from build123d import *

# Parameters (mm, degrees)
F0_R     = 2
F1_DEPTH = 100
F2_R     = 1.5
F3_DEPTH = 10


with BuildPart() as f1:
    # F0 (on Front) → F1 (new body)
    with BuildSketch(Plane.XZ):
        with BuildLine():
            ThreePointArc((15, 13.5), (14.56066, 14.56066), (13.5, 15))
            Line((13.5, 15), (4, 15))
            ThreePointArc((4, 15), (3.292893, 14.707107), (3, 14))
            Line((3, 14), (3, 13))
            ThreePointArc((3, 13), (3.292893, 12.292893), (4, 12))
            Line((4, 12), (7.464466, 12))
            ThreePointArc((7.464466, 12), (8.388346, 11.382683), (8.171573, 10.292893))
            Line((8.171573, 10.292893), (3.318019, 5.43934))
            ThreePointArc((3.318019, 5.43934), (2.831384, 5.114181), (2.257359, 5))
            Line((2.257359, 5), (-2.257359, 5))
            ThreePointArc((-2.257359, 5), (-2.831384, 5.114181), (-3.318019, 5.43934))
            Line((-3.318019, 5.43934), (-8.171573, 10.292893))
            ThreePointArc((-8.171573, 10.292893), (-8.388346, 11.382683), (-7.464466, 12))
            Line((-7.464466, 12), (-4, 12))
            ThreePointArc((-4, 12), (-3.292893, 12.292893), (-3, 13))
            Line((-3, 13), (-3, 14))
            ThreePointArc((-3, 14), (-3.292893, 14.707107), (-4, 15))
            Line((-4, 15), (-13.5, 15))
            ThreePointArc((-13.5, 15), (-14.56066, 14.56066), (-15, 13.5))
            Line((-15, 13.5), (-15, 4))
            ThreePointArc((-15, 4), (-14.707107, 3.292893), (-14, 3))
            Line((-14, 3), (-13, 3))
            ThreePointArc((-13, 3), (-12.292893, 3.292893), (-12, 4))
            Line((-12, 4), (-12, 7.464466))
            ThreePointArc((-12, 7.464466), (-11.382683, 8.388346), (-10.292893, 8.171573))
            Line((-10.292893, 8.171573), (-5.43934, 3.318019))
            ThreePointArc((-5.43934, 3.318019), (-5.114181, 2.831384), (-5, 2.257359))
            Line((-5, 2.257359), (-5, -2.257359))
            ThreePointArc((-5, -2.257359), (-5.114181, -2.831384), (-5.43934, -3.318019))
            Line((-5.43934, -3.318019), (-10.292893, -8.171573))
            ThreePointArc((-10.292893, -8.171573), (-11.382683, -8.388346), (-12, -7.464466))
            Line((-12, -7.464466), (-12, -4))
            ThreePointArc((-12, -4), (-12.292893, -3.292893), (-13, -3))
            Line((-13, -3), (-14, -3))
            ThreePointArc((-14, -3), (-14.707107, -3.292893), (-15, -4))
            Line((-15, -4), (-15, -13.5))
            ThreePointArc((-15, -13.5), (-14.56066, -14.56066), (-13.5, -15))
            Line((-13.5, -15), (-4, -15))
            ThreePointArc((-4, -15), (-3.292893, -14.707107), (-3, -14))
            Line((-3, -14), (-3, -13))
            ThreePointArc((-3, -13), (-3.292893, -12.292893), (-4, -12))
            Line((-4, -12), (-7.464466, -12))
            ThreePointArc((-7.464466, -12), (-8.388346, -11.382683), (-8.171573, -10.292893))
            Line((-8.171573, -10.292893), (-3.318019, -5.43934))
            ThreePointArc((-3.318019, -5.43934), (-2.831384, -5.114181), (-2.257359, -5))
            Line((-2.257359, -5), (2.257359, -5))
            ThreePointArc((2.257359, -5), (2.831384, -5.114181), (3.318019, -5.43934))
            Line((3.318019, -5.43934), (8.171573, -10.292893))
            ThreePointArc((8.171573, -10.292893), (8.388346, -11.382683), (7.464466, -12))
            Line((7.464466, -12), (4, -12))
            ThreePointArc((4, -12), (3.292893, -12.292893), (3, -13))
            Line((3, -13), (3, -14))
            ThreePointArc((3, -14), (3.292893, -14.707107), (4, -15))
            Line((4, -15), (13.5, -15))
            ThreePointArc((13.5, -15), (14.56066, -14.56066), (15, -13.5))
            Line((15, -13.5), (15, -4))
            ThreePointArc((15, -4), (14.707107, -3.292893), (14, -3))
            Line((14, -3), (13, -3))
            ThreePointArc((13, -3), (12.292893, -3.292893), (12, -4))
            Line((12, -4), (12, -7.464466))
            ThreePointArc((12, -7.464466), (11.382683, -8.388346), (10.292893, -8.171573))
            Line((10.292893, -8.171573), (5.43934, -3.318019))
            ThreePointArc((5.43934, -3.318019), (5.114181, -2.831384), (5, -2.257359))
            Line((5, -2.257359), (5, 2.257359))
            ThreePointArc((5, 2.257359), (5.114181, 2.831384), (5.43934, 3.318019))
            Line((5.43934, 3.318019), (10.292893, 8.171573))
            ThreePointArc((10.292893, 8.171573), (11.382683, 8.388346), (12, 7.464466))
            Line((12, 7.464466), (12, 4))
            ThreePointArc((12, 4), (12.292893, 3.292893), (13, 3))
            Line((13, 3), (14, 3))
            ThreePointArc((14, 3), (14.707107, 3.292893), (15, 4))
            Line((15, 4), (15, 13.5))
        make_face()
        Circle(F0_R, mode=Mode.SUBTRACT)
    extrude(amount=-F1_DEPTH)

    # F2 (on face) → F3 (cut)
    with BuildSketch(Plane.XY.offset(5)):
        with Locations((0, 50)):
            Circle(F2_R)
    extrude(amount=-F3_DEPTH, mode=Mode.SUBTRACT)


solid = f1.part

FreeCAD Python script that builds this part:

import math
import FreeCAD as App
import Part
import Sketcher

V = App.Vector

doc = App.newDocument("Part")
params = doc.addObject("Spreadsheet::Sheet", "Params")
for row, (alias, value) in enumerate([
    ("sketch1_diameter", "4 mm"),
    ("sketch1_radius", "0.999999 mm"),
    ("sketch1_radius2", "1.500001 mm"),
    ("sketch1_width", "1 mm"),
    ("sketch1_width2", "9.5 mm"),
    ("pad1_length", "100 mm"),
    ("sketch2_diameter", "3 mm"),
    ("pocket1_length", "10 mm"),
], start=1):
    params.set(f"A{row}", alias)
    params.set(f"B{row}", "=" + value)
    params.setAlias(f"B{row}", alias)

body = doc.addObject("PartDesign::Body", "Body")

# Sketch on XZ plane
sketch1 = body.newObject("Sketcher::SketchObject", "Sketch")
sketch1.AttachmentSupport = (doc.getObject("XZ_Plane"), [""])
sketch1.MapMode = "FlatFace"
sketch1.addGeometry([
    Part.ArcOfCircle(Part.Circle(V(13.5, 13.5, 0), V(0, 0, 1), 1.5), math.radians(0), math.radians(90)),  # 0
    Part.LineSegment(V(13.5, 15, 0), V(4, 15, 0)),  # 1
    Part.ArcOfCircle(Part.Circle(V(4, 14, 0), V(0, 0, 1), 1), math.radians(90), math.radians(180)),  # 2
    Part.LineSegment(V(3, 14, 0), V(3, 13, 0)),  # 3
    Part.ArcOfCircle(Part.Circle(V(4, 13, 0), V(0, 0, 1), 1), math.radians(180), math.radians(270)),  # 4
    Part.LineSegment(V(4, 12, 0), V(7.5, 12, 0)),  # 5
    Part.ArcOfCircle(Part.Circle(V(7.5, 11, 0), V(0, 0, 1), 1), math.radians(-45), math.radians(90)),  # 6
    Part.LineSegment(V(8.2, 10.3, 0), V(3.3, 5.4, 0)),  # 7
    Part.ArcOfCircle(Part.Circle(V(2.3, 6.5, 0), V(0, 0, 1), 1.5), math.radians(-90), math.radians(-45)),  # 8
    Part.LineSegment(V(2.3, 5, 0), V(-2.3, 5, 0)),  # 9
    Part.ArcOfCircle(Part.Circle(V(-2.3, 6.5, 0), V(0, 0, 1), 1.5), math.radians(-135), math.radians(-90)),  # 10
    Part.LineSegment(V(-3.3, 5.4, 0), V(-8.2, 10.3, 0)),  # 11
    Part.ArcOfCircle(Part.Circle(V(-7.5, 11, 0), V(0, 0, 1), 1), math.radians(90), math.radians(225)),  # 12
    Part.LineSegment(V(-7.5, 12, 0), V(-4, 12, 0)),  # 13
    Part.ArcOfCircle(Part.Circle(V(-4, 13, 0), V(0, 0, 1), 1), math.radians(-90), math.radians(0)),  # 14
    Part.LineSegment(V(-3, 13, 0), V(-3, 14, 0)),  # 15
    Part.ArcOfCircle(Part.Circle(V(-4, 14, 0), V(0, 0, 1), 1), math.radians(0), math.radians(90)),  # 16
    Part.LineSegment(V(-4, 15, 0), V(-13.5, 15, 0)),  # 17
    Part.ArcOfCircle(Part.Circle(V(-13.5, 13.5, 0), V(0, 0, 1), 1.5), math.radians(90), math.radians(180)),  # 18
    Part.LineSegment(V(-15, 13.5, 0), V(-15, 4, 0)),  # 19
    Part.ArcOfCircle(Part.Circle(V(-14, 4, 0), V(0, 0, 1), 1), math.radians(180), math.radians(270)),  # 20
    Part.LineSegment(V(-14, 3, 0), V(-13, 3, 0)),  # 21
    Part.ArcOfCircle(Part.Circle(V(-13, 4, 0), V(0, 0, 1), 1), math.radians(-90), math.radians(0)),  # 22
    Part.LineSegment(V(-12, 4, 0), V(-12, 7.5, 0)),  # 23
    Part.ArcOfCircle(Part.Circle(V(-11, 7.5, 0), V(0, 0, 1), 1), math.radians(45), math.radians(180)),  # 24
    Part.LineSegment(V(-10.3, 8.2, 0), V(-5.4, 3.3, 0)),  # 25
    Part.ArcOfCircle(Part.Circle(V(-6.5, 2.3, 0), V(0, 0, 1), 1.5), math.radians(0), math.radians(45)),  # 26
    Part.LineSegment(V(-5, 2.3, 0), V(-5, -2.3, 0)),  # 27
    Part.ArcOfCircle(Part.Circle(V(-6.5, -2.3, 0), V(0, 0, 1), 1.5), math.radians(-45), math.radians(0)),  # 28
    Part.LineSegment(V(-5.4, -3.3, 0), V(-10.3, -8.2, 0)),  # 29
    Part.ArcOfCircle(Part.Circle(V(-11, -7.5, 0), V(0, 0, 1), 1), math.radians(180), math.radians(315)),  # 30
    Part.LineSegment(V(-12, -7.5, 0), V(-12, -4, 0)),  # 31
    Part.ArcOfCircle(Part.Circle(V(-13, -4, 0), V(0, 0, 1), 1), math.radians(0), math.radians(90)),  # 32
    Part.LineSegment(V(-13, -3, 0), V(-14, -3, 0)),  # 33
    Part.ArcOfCircle(Part.Circle(V(-14, -4, 0), V(0, 0, 1), 1), math.radians(90), math.radians(180)),  # 34
    Part.LineSegment(V(-15, -4, 0), V(-15, -13.5, 0)),  # 35
    Part.ArcOfCircle(Part.Circle(V(-13.5, -13.5, 0), V(0, 0, 1), 1.5), math.radians(-180), math.radians(-90)),  # 36
    Part.LineSegment(V(-13.5, -15, 0), V(-4, -15, 0)),  # 37
    Part.ArcOfCircle(Part.Circle(V(-4, -14, 0), V(0, 0, 1), 1), math.radians(-90), math.radians(0)),  # 38
    Part.LineSegment(V(-3, -14, 0), V(-3, -13, 0)),  # 39
    Part.ArcOfCircle(Part.Circle(V(-4, -13, 0), V(0, 0, 1), 1), math.radians(0), math.radians(90)),  # 40
    Part.LineSegment(V(-4, -12, 0), V(-7.5, -12, 0)),  # 41
    Part.ArcOfCircle(Part.Circle(V(-7.5, -11, 0), V(0, 0, 1), 1), math.radians(135), math.radians(270)),  # 42
    Part.LineSegment(V(-8.2, -10.3, 0), V(-3.3, -5.4, 0)),  # 43
    Part.ArcOfCircle(Part.Circle(V(-2.3, -6.5, 0), V(0, 0, 1), 1.5), math.radians(90), math.radians(135)),  # 44
    Part.LineSegment(V(-2.3, -5, 0), V(2.3, -5, 0)),  # 45
    Part.ArcOfCircle(Part.Circle(V(2.3, -6.5, 0), V(0, 0, 1), 1.5), math.radians(45), math.radians(90)),  # 46
    Part.LineSegment(V(3.3, -5.4, 0), V(8.2, -10.3, 0)),  # 47
    Part.ArcOfCircle(Part.Circle(V(7.5, -11, 0), V(0, 0, 1), 1), math.radians(-90), math.radians(45)),  # 48
    Part.LineSegment(V(7.5, -12, 0), V(4, -12, 0)),  # 49
    Part.ArcOfCircle(Part.Circle(V(4, -13, 0), V(0, 0, 1), 1), math.radians(90), math.radians(180)),  # 50
    Part.LineSegment(V(3, -13, 0), V(3, -14, 0)),  # 51
    Part.ArcOfCircle(Part.Circle(V(4, -14, 0), V(0, 0, 1), 1), math.radians(180), math.radians(270)),  # 52
    Part.LineSegment(V(4, -15, 0), V(13.5, -15, 0)),  # 53
    Part.ArcOfCircle(Part.Circle(V(13.5, -13.5, 0), V(0, 0, 1), 1.5), math.radians(-90), math.radians(0)),  # 54
    Part.LineSegment(V(15, -13.5, 0), V(15, -4, 0)),  # 55
    Part.ArcOfCircle(Part.Circle(V(14, -4, 0), V(0, 0, 1), 1), math.radians(0), math.radians(90)),  # 56
    Part.LineSegment(V(14, -3, 0), V(13, -3, 0)),  # 57
    Part.ArcOfCircle(Part.Circle(V(13, -4, 0), V(0, 0, 1), 1), math.radians(90), math.radians(180)),  # 58
    Part.LineSegment(V(12, -4, 0), V(12, -7.5, 0)),  # 59
    Part.ArcOfCircle(Part.Circle(V(11, -7.5, 0), V(0, 0, 1), 1), math.radians(-135), math.radians(0)),  # 60
    Part.LineSegment(V(10.3, -8.2, 0), V(5.4, -3.3, 0)),  # 61
    Part.ArcOfCircle(Part.Circle(V(6.5, -2.3, 0), V(0, 0, 1), 1.5), math.radians(-180), math.radians(-135)),  # 62
    Part.LineSegment(V(5, -2.3, 0), V(5, 2.3, 0)),  # 63
    Part.ArcOfCircle(Part.Circle(V(6.5, 2.3, 0), V(0, 0, 1), 1.5), math.radians(135), math.radians(180)),  # 64
    Part.LineSegment(V(5.4, 3.3, 0), V(10.3, 8.2, 0)),  # 65
    Part.ArcOfCircle(Part.Circle(V(11, 7.5, 0), V(0, 0, 1), 1), math.radians(0), math.radians(135)),  # 66
    Part.LineSegment(V(12, 7.5, 0), V(12, 4, 0)),  # 67
    Part.ArcOfCircle(Part.Circle(V(13, 4, 0), V(0, 0, 1), 1), math.radians(180), math.radians(270)),  # 68
    Part.LineSegment(V(13, 3, 0), V(14, 3, 0)),  # 69
    Part.ArcOfCircle(Part.Circle(V(14, 4, 0), V(0, 0, 1), 1), math.radians(-90), math.radians(0)),  # 70
    Part.LineSegment(V(15, 4, 0), V(15, 13.5, 0)),  # 71
    Part.Circle(V(0, 0, 0), V(0, 0, 1), 2),  # 72
], False)
sketch1.addConstraint([
    Sketcher.Constraint("Tangent", 0, 2, 1, 1),
    Sketcher.Constraint("Tangent", 1, 2, 2, 1),
    Sketcher.Constraint("Tangent", 2, 2, 3, 1),
    Sketcher.Constraint("Tangent", 3, 2, 4, 1),
    Sketcher.Constraint("Tangent", 4, 2, 5, 1),
    Sketcher.Constraint("Tangent", 5, 2, 6, 2),
    Sketcher.Constraint("Tangent", 6, 1, 7, 1),
    Sketcher.Constraint("Tangent", 7, 2, 8, 2),
    Sketcher.Constraint("Tangent", 8, 1, 9, 1),
    Sketcher.Constraint("Tangent", 9, 2, 10, 2),
    Sketcher.Constraint("Tangent", 10, 1, 11, 1),
    Sketcher.Constraint("Tangent", 11, 2, 12, 2),
    Sketcher.Constraint("Tangent", 12, 1, 13, 1),
    Sketcher.Constraint("Tangent", 13, 2, 14, 1),
    Sketcher.Constraint("Tangent", 14, 2, 15, 1),
    Sketcher.Constraint("Tangent", 15, 2, 16, 1),
    Sketcher.Constraint("Tangent", 16, 2, 17, 1),
    Sketcher.Constraint("Tangent", 17, 2, 18, 1),
    Sketcher.Constraint("Tangent", 18, 2, 19, 1),
    Sketcher.Constraint("Tangent", 19, 2, 20, 1),
    Sketcher.Constraint("Tangent", 20, 2, 21, 1),
    Sketcher.Constraint("Tangent", 21, 2, 22, 1),
    Sketcher.Constraint("Tangent", 22, 2, 23, 1),
    Sketcher.Constraint("Tangent", 23, 2, 24, 2),
    Sketcher.Constraint("Tangent", 24, 1, 25, 1),
    Sketcher.Constraint("Tangent", 25, 2, 26, 2),
    Sketcher.Constraint("Tangent", 26, 1, 27, 1),
    Sketcher.Constraint("Tangent", 27, 2, 28, 2),
    Sketcher.Constraint("Tangent", 28, 1, 29, 1),
    Sketcher.Constraint("Tangent", 29, 2, 30, 2),
    Sketcher.Constraint("Tangent", 30, 1, 31, 1),
    Sketcher.Constraint("Tangent", 31, 2, 32, 1),
    Sketcher.Constraint("Tangent", 32, 2, 33, 1),
    Sketcher.Constraint("Tangent", 33, 2, 34, 1),
    Sketcher.Constraint("Tangent", 34, 2, 35, 1),
    Sketcher.Constraint("Tangent", 35, 2, 36, 1),
    Sketcher.Constraint("Tangent", 36, 2, 37, 1),
    Sketcher.Constraint("Tangent", 37, 2, 38, 1),
    Sketcher.Constraint("Tangent", 38, 2, 39, 1),
    Sketcher.Constraint("Tangent", 39, 2, 40, 1),
    Sketcher.Constraint("Tangent", 40, 2, 41, 1),
    Sketcher.Constraint("Tangent", 41, 2, 42, 2),
    Sketcher.Constraint("Tangent", 42, 1, 43, 1),
    Sketcher.Constraint("Tangent", 43, 2, 44, 2),
    Sketcher.Constraint("Tangent", 44, 1, 45, 1),
    Sketcher.Constraint("Tangent", 45, 2, 46, 2),
    Sketcher.Constraint("Tangent", 46, 1, 47, 1),
    Sketcher.Constraint("Tangent", 47, 2, 48, 2),
    Sketcher.Constraint("Tangent", 48, 1, 49, 1),
    Sketcher.Constraint("Tangent", 49, 2, 50, 1),
    Sketcher.Constraint("Tangent", 50, 2, 51, 1),
    Sketcher.Constraint("Tangent", 51, 2, 52, 1),
    Sketcher.Constraint("Tangent", 52, 2, 53, 1),
    Sketcher.Constraint("Tangent", 53, 2, 54, 1),
    Sketcher.Constraint("Tangent", 54, 2, 55, 1),
    Sketcher.Constraint("Tangent", 55, 2, 56, 1),
    Sketcher.Constraint("Tangent", 56, 2, 57, 1),
    Sketcher.Constraint("Tangent", 57, 2, 58, 1),
    Sketcher.Constraint("Tangent", 58, 2, 59, 1),
    Sketcher.Constraint("Tangent", 59, 2, 60, 2),
    Sketcher.Constraint("Tangent", 60, 1, 61, 1),
    Sketcher.Constraint("Tangent", 61, 2, 62, 2),
    Sketcher.Constraint("Tangent", 62, 1, 63, 1),
    Sketcher.Constraint("Tangent", 63, 2, 64, 2),
    Sketcher.Constraint("Tangent", 64, 1, 65, 1),
    Sketcher.Constraint("Tangent", 65, 2, 66, 2),
    Sketcher.Constraint("Tangent", 66, 1, 67, 1),
    Sketcher.Constraint("Tangent", 67, 2, 68, 1),
    Sketcher.Constraint("Tangent", 68, 2, 69, 1),
    Sketcher.Constraint("Tangent", 69, 2, 70, 1),
    Sketcher.Constraint("Tangent", 70, 2, 71, 1),
    Sketcher.Constraint("Tangent", 71, 2, 0, 1),
    Sketcher.Constraint("Horizontal", 1),
    Sketcher.Constraint("Vertical", 3),
    Sketcher.Constraint("Horizontal", 5),
    Sketcher.Constraint("Horizontal", 9),
    Sketcher.Constraint("Horizontal", 13),
    Sketcher.Constraint("Vertical", 15),
    Sketcher.Constraint("Horizontal", 17),
    Sketcher.Constraint("Vertical", 19),
    Sketcher.Constraint("Horizontal", 21),
    Sketcher.Constraint("Vertical", 23),
    Sketcher.Constraint("Vertical", 27),
    Sketcher.Constraint("Vertical", 31),
    Sketcher.Constraint("Horizontal", 33),
    Sketcher.Constraint("Vertical", 35),
    Sketcher.Constraint("Horizontal", 37),
    Sketcher.Constraint("Vertical", 39),
    Sketcher.Constraint("Horizontal", 41),
    Sketcher.Constraint("Horizontal", 45),
    Sketcher.Constraint("Horizontal", 49),
    Sketcher.Constraint("Vertical", 51),
    Sketcher.Constraint("Horizontal", 53),
    Sketcher.Constraint("Vertical", 55),
    Sketcher.Constraint("Horizontal", 57),
    Sketcher.Constraint("Vertical", 59),
    Sketcher.Constraint("Vertical", 63),
    Sketcher.Constraint("Vertical", 67),
    Sketcher.Constraint("Horizontal", 69),
    Sketcher.Constraint("Vertical", 71),
    Sketcher.Constraint("Coincident", 72, 3, -1, 1),
    Sketcher.Constraint("Equal", 2, 4),
    Sketcher.Constraint("Equal", 4, 6),
    Sketcher.Constraint("Equal", 0, 8),
    Sketcher.Constraint("Equal", 8, 10),
    Sketcher.Constraint("Equal", 6, 12),
    Sketcher.Constraint("Equal", 12, 14),
    Sketcher.Constraint("Equal", 14, 16),
    Sketcher.Constraint("Equal", 10, 18),
    Sketcher.Constraint("Equal", 16, 20),
    Sketcher.Constraint("Equal", 20, 22),
    Sketcher.Constraint("Equal", 22, 24),
    Sketcher.Constraint("Equal", 18, 26),
    Sketcher.Constraint("Equal", 26, 28),
    Sketcher.Constraint("Equal", 24, 30),
    Sketcher.Constraint("Equal", 30, 32),
    Sketcher.Constraint("Equal", 32, 34),
    Sketcher.Constraint("Equal", 28, 36),
    Sketcher.Constraint("Equal", 34, 38),
    Sketcher.Constraint("Equal", 38, 40),
    Sketcher.Constraint("Equal", 40, 42),
    Sketcher.Constraint("Equal", 36, 44),
    Sketcher.Constraint("Equal", 44, 46),
    Sketcher.Constraint("Equal", 42, 48),
    Sketcher.Constraint("Equal", 48, 50),
    Sketcher.Constraint("Equal", 50, 52),
    Sketcher.Constraint("Equal", 46, 54),
    Sketcher.Constraint("Equal", 52, 56),
    Sketcher.Constraint("Equal", 56, 58),
    Sketcher.Constraint("Equal", 58, 60),
    Sketcher.Constraint("Equal", 54, 62),
    Sketcher.Constraint("Equal", 62, 64),
    Sketcher.Constraint("Equal", 60, 66),
    Sketcher.Constraint("Equal", 66, 68),
    Sketcher.Constraint("Equal", 68, 70),
    Sketcher.Constraint("Symmetric", 0, 3, 36, 3, -1, 1),
    Sketcher.Constraint("Symmetric", 4, 3, 40, 3, -1, 1),
    Sketcher.Constraint("Symmetric", 8, 3, 44, 3, -1, 1),
    Sketcher.Constraint("Symmetric", 12, 3, 48, 3, -1, 1),
    Sketcher.Constraint("Symmetric", 16, 3, 52, 3, -1, 1),
    Sketcher.Constraint("Symmetric", 20, 3, 56, 3, -1, 1),
    Sketcher.Constraint("Symmetric", 24, 3, 60, 3, -1, 1),
    Sketcher.Constraint("Symmetric", 26, 3, 62, 3, -1, 1),
    Sketcher.Constraint("Symmetric", 30, 3, 66, 3, -1, 1),
    Sketcher.Constraint("Symmetric", 6, 3, 12, 3, -2),
    Sketcher.Constraint("Symmetric", 2, 3, 16, 3, -2),
    Sketcher.Constraint("Symmetric", 34, 3, 56, 3, -2),
    Sketcher.Constraint("Symmetric", 30, 3, 60, 3, -2),
    Sketcher.Constraint("Symmetric", 43, 2, 46, 1, -2),
    Sketcher.Constraint("Perpendicular", 7, 11),
    Sketcher.Constraint("Parallel", 11, 25),
    Sketcher.Constraint("Perpendicular", 25, 29),
    Sketcher.Constraint("Perpendicular", 43, 47),
    Sketcher.Constraint("Perpendicular", 61, 65),
    Sketcher.Constraint("Horizontal", 22, 3, 68, 3),
    Sketcher.Constraint("Equal", 69, 3),
    Sketcher.Constraint("Equal", 53, 19),
    Sketcher.Constraint("Equal", 49, 23),
    Sketcher.Constraint("Equal", 45, 27),
    Sketcher.Constraint("Equal", 11, 25),
    Sketcher.Constraint("Diameter", 72, 4.0),
    Sketcher.Constraint("Radius", 2, 0.999999),
    Sketcher.Constraint("Radius", 0, 1.500001),
    Sketcher.Constraint("DistanceX", 21, 1, 21, 2, 1.0),
    Sketcher.Constraint("DistanceX", 1, 2, 1, 1, 9.5),
    Sketcher.Constraint("DistanceX", -1, 1, 2, 3, 3.999999),
    Sketcher.Constraint("DistanceY", -1, 1, 8, 1, 5.0),
    Sketcher.Constraint("DistanceX", 9, 2, 9, 1, 4.514718),
])
sketch1.setExpression("Constraints[160]", "Params.sketch1_diameter")
sketch1.setExpression("Constraints[161]", "Params.sketch1_radius")
sketch1.setExpression("Constraints[162]", "Params.sketch1_radius2")
sketch1.setExpression("Constraints[163]", "Params.sketch1_width")
sketch1.setExpression("Constraints[164]", "Params.sketch1_width2")
pad1 = body.newObject("PartDesign::Pad", "Pad")
pad1.Profile = sketch1
pad1.setExpression("Length", "Params.pad1_length")
pad1.Reversed = True

# Sketch on XY plane
sketch2 = body.newObject("Sketcher::SketchObject", "Sketch001")
sketch2.AttachmentSupport = (doc.getObject("XY_Plane"), [""])
sketch2.MapMode = "FlatFace"
sketch2.AttachmentOffset = App.Placement(V(0, 0, 5), App.Rotation())
sketch2.addGeometry(Part.Circle(V(0, 50, 0), V(0, 0, 1), 1.5), False)
sketch2.addConstraint([
    Sketcher.Constraint("PointOnObject", 0, 3, -2),
    Sketcher.Constraint("Diameter", 0, 3.0),
    Sketcher.Constraint("DistanceY", -1, 1, 0, 3, 50.0),
])
sketch2.setExpression("Constraints[1]", "Params.sketch2_diameter")
pocket1 = body.newObject("PartDesign::Pocket", "Pocket")
pocket1.Profile = sketch2
pocket1.setExpression("Length", "Params.pocket1_length")

doc.recompute()
